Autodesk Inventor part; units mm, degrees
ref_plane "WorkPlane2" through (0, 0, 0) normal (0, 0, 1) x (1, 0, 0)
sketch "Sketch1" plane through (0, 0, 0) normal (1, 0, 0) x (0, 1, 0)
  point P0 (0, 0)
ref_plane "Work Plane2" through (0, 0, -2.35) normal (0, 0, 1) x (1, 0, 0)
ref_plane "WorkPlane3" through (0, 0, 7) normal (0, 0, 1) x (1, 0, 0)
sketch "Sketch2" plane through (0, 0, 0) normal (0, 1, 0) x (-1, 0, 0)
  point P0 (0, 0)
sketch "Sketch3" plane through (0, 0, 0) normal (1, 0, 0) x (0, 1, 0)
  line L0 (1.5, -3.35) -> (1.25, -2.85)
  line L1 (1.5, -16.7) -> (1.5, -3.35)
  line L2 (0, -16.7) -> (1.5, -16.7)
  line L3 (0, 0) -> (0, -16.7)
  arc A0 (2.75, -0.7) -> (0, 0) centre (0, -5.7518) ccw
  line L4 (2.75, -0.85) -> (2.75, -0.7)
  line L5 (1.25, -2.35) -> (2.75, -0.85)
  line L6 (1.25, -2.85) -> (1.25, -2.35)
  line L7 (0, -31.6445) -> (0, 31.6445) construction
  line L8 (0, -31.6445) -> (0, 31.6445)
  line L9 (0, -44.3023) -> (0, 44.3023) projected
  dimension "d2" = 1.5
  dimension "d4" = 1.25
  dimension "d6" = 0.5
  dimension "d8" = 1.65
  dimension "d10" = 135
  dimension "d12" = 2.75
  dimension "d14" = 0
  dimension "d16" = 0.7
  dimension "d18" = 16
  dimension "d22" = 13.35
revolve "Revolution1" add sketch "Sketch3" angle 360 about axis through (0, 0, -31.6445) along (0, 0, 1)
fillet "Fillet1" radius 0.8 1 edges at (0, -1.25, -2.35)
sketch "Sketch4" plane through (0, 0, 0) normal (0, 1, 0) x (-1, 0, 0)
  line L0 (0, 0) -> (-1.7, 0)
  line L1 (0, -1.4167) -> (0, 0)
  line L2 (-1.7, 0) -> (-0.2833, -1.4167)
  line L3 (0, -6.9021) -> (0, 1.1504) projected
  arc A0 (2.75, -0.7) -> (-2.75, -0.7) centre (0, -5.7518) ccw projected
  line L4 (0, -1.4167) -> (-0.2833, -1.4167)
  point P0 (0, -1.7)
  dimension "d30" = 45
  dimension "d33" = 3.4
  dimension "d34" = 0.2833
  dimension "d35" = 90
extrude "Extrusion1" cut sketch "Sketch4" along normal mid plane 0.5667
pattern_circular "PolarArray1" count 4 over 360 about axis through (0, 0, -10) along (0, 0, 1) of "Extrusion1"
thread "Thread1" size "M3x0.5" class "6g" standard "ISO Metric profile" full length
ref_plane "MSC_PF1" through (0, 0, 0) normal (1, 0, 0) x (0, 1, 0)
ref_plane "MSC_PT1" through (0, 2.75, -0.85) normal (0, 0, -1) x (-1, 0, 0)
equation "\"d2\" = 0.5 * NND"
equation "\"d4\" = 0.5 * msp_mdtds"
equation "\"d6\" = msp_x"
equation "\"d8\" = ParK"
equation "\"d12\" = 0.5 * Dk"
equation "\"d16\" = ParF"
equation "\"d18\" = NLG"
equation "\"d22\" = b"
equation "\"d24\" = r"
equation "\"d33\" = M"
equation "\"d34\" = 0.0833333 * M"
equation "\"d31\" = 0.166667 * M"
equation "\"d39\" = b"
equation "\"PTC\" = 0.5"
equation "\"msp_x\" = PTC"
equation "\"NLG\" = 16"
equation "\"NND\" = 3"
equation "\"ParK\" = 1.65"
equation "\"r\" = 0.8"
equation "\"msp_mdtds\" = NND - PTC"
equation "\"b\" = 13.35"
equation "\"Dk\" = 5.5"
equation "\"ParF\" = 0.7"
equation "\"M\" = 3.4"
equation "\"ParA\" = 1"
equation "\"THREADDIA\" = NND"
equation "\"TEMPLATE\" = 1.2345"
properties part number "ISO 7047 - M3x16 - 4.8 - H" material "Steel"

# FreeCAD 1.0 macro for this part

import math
import FreeCAD as App
import Part
import Sketcher

V = App.Vector
Q = App.Units.Quantity


def edges_at(feature, points):
    """Names of the edges that pass closest to the given points."""
    edges = feature.Shape.Edges
    near = lambda p: min(range(len(edges)), key=lambda i: edges[i].distToShape(Part.Vertex(*p))[0])
    return sorted({f"Edge{near(p) + 1}" for p in points})


def add_polygon(sketch, points):
    """Adds a closed chain of lines whose ends are joined by coincident constraints."""
    first, n = sketch.GeometryCount, len(points)
    for a, b in zip(points, points[1:] + points[:1]):
        sketch.addGeometry(Part.LineSegment(App.Vector(*a, 0), App.Vector(*b, 0)), False)
    for i in range(n):
        sketch.addConstraint(Sketcher.Constraint("Coincident", first + i, 2, first + (i + 1) % n, 1))

doc = App.newDocument("Part")
body = doc.addObject("PartDesign::Body", "Body")

# Sketch on YZ plane
sketch1 = body.newObject("Sketcher::SketchObject", "Sketch")
sketch1.AttachmentSupport = (doc.getObject("YZ_Plane"), [""])
sketch1.MapMode = "FlatFace"
sketch1.addGeometry([
    Part.LineSegment(V(1.5, -16.7, 0), V(1.5, -3.35, 0)),  # 0
    Part.LineSegment(V(1.5, -3.35, 0), V(1.25, -2.85, 0)),  # 1
    Part.LineSegment(V(1.25, -2.85, 0), V(1.25, -2.35, 0)),  # 2
    Part.LineSegment(V(1.25, -2.35, 0), V(2.75, -0.85, 0)),  # 3
    Part.LineSegment(V(2.75, -0.85, 0), V(2.75, -0.7, 0)),  # 4
    Part.ArcOfCircle(Part.Circle(V(0, -5.7518, 0), V(0, 0, 1), 5.751798), math.radians(61.437877), math.radians(90)),  # 5
    Part.LineSegment(V(0, 0, 0), V(0, -16.7, 0)),  # 6
    Part.LineSegment(V(0, -16.7, 0), V(1.5, -16.7, 0)),  # 7
], False)
sketch1.addConstraint([
    Sketcher.Constraint("Coincident", 0, 2, 1, 1),
    Sketcher.Constraint("Coincident", 1, 2, 2, 1),
    Sketcher.Constraint("Coincident", 2, 2, 3, 1),
    Sketcher.Constraint("Coincident", 3, 2, 4, 1),
    Sketcher.Constraint("Coincident", 4, 2, 5, 1),
    Sketcher.Constraint("Coincident", 5, 2, 6, 1),
    Sketcher.Constraint("Coincident", 6, 2, 7, 1),
    Sketcher.Constraint("Coincident", 7, 2, 0, 1),
    Sketcher.Constraint("Vertical", 0),
    Sketcher.Constraint("Vertical", 2),
    Sketcher.Constraint("Vertical", 4),
    Sketcher.Constraint("Vertical", 6),
    Sketcher.Constraint("Horizontal", 7),
    Sketcher.Constraint("Coincident", 5, 2, -1, 1),
    Sketcher.Constraint("PointOnObject", 5, 3, -2),
    Sketcher.Constraint("DistanceX", 7, 1, 7, 2, 1.5),
    Sketcher.Constraint("DistanceY", 2, 1, 2, 2, 0.5),
    Sketcher.Constraint("DistanceY", 0, 1, 0, 2, 13.35),
    Sketcher.Constraint("DistanceY", 4, 2, -1, 1, 0.7),
    Sketcher.Constraint("DistanceY", 0, 2, 1, 2, 0.5),
    Sketcher.Constraint("DistanceX", 2, 2, 3, 2, 1.5),
    Sketcher.Constraint("DistanceY", 2, 2, 3, 2, 1.5),
    Sketcher.Constraint("DistanceX", -1, 1, 1, 2, 1.25),
    Sketcher.Constraint("DistanceY", 2, 2, 4, 2, 1.65),
])
revolution = body.newObject("PartDesign::Revolution", "Revolution")
revolution.Profile = sketch1
revolution.ReferenceAxis = (sketch1, ["V_Axis"])
revolution.Angle = 360
doc.recompute()

fillet = body.newObject("PartDesign::Fillet", "Fillet")
fillet.Base = (revolution, edges_at(revolution, [(0, -1.25, -2.35)]))
fillet.Radius = 0.8

# Sketch on XZ plane
sketch2 = body.newObject("Sketcher::SketchObject", "Sketch001")
sketch2.AttachmentSupport = (doc.getObject("XZ_Plane"), [""])
sketch2.MapMode = "FlatFace"
add_polygon(sketch2, [(1.7, 0), (0.2833, -1.4167), (0, -1.4167), (0, 0)])  # lines 0-3
sketch2.addConstraint([
    Sketcher.Constraint("Horizontal", 1),
    Sketcher.Constraint("Vertical", 2),
    Sketcher.Constraint("Horizontal", 3),
    Sketcher.Constraint("Coincident", 2, 2, -1, 1),
    Sketcher.Constraint("Angle", 0, Q("-135 deg")),
    Sketcher.Constraint("DistanceX", 1, 2, 1, 1, 0.2833),
    Sketcher.Constraint("DistanceX", 3, 1, 3, 2, 1.7),
])
pocket1 = body.newObject("PartDesign::Pocket", "Pocket")
pocket1.Profile = sketch2
pocket1.Length = 0.5667
pocket1.Midplane = True
doc.recompute()

polarpattern = body.newObject("PartDesign::PolarPattern", "PolarPattern")
polarpattern.Originals = [pocket1]
polarpattern.Axis = (doc.getObject("Z_Axis"), [""])
polarpattern.Angle = 360
polarpattern.Occurrences = 4
body.Tip = polarpattern

doc.recompute()
